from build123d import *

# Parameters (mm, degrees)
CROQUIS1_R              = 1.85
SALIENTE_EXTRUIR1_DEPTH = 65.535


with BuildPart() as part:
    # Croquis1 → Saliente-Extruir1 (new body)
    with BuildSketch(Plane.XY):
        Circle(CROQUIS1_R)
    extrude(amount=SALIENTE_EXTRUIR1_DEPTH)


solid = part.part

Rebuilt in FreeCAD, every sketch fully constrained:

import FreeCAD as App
import Part
import Sketcher
Q = App.Units.Quantity

doc = App.newDocument("Part")
params = doc.addObject("Spreadsheet::Sheet", "Params")
for row, (alias, value) in enumerate([
    ("sketch1_diameter", "3.7 mm"),
    ("pad1_length", "65.535 mm"),
], start=1):
    params.set(f"A{row}", alias)
    params.set(f"B{row}", "=" + value)
    params.setAlias(f"B{row}", alias)

body = doc.addObject("PartDesign::Body", "Body")

# Sketch on XY plane
sketch1 = body.newObject("Sketcher::SketchObject", "Sketch")
sketch1.AttachmentSupport = (doc.getObject("XY_Plane"), [""])
sketch1.MapMode = "FlatFace"
sketch1.addGeometry(Part.Circle(App.Vector(0, 0, 0), App.Vector(0, 0, 1), 1.9), False)
sketch1.addConstraint(Sketcher.Constraint("Coincident", 0, 3, -1, 1))
sketch1.addConstraint(Sketcher.Constraint("Diameter", 0, Q("3.7 mm")))
sketch1.setExpression("Constraints[1]", "Params.sketch1_diameter")
pad1 = body.newObject("PartDesign::Pad", "Pad")
pad1.Profile = sketch1
pad1.setExpression("Length", "Params.pad1_length")

doc.recompute()
